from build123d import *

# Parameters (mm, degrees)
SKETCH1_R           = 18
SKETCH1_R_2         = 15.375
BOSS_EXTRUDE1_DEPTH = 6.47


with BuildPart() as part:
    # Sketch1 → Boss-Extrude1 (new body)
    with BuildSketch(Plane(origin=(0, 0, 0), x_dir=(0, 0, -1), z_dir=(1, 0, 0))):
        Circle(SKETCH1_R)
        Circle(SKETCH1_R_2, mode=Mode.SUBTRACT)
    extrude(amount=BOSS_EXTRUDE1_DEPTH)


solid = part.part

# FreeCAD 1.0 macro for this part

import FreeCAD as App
import Part
import Sketcher
Q = App.Units.Quantity

doc = App.newDocument("Part")
body = doc.addObject("PartDesign::Body", "Body")

sketch1 = body.newObject("Sketcher::SketchObject", "Sketch")
sketch1.AttachmentSupport = (doc.getObject("YZ_Plane"), [""])
sketch1.MapMode = "FlatFace"
sketch1.addGeometry([
    Part.Circle(App.Vector(0, 0, 0), App.Vector(0, 0, 1), 18),
    Part.Circle(App.Vector(0, 0, 0), App.Vector(0, 0, 1), 15.375),
], False)
sketch1.addConstraint([
    Sketcher.Constraint("Coincident", 0, 3, -1, 1),
    Sketcher.Constraint("Coincident", 1, 3, -1, 1),
    Sketcher.Constraint("Diameter", 0, Q("36 mm")),
    Sketcher.Constraint("Diameter", 1, Q("30.75 mm")),
])
pad1 = body.newObject("PartDesign::Pad", "Pad")
pad1.Profile = sketch1
pad1.Length = 6.47

doc.recompute()
